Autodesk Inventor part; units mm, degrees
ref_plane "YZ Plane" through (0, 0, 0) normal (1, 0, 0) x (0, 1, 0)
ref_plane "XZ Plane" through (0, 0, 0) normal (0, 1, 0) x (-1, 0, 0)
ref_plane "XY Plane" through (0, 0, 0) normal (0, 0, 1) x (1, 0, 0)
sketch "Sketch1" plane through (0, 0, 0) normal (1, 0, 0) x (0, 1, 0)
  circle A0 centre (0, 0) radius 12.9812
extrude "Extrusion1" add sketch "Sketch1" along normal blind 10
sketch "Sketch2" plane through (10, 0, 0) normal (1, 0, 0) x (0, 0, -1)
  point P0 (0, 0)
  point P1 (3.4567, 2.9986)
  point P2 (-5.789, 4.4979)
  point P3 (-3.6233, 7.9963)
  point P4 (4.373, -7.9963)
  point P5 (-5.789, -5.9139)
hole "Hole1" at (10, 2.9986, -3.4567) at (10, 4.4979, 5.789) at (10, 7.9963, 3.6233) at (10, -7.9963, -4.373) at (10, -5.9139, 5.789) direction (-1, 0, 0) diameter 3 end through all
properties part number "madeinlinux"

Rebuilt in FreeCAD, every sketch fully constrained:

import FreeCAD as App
import Part
import Sketcher
from FreeCAD import Vector

doc = App.newDocument("Part")
body = doc.addObject("PartDesign::Body", "Body")

# Sketch on YZ plane
sketch1 = body.newObject("Sketcher::SketchObject", "Sketch")
sketch1.AttachmentSupport = (doc.getObject("YZ_Plane"), [""])
sketch1.MapMode = "FlatFace"
sketch1.addGeometry(Part.Circle(Vector(0, 0, 0), Vector(0, 0, 1), 13), False)
sketch1.addConstraint(Sketcher.Constraint("Coincident", 0, 3, -1, 1))
sketch1.addConstraint(Sketcher.Constraint("Diameter", 0, 25.9624))
pad1 = body.newObject("PartDesign::Pad", "Pad")
pad1.Profile = sketch1
pad1.Length = 10

# Sketch on YZ plane
sketch2 = body.newObject("Sketcher::SketchObject", "Sketch001")
sketch2.AttachmentSupport = (doc.getObject("YZ_Plane"), [""])
sketch2.MapMode = "FlatFace"
sketch2.AttachmentOffset = App.Placement(Vector(0, 0, 10), App.Rotation())
sketch2.addGeometry(Part.Circle(Vector(3, -3.5, 0), Vector(0, 0, 1), 1.5), False)
sketch2.addGeometry(Part.Circle(Vector(4.5, 5.8, 0), Vector(0, 0, 1), 1.5), False)
sketch2.addGeometry(Part.Circle(Vector(8, 3.6, 0), Vector(0, 0, 1), 1.5), False)
sketch2.addGeometry(Part.Circle(Vector(-8, -4.4, 0), Vector(0, 0, 1), 1.5), False)
sketch2.addGeometry(Part.Circle(Vector(-5.9, 5.8, 0), Vector(0, 0, 1), 1.5), False)
sketch2.addConstraint(Sketcher.Constraint("Equal", 0, 1))
sketch2.addConstraint(Sketcher.Constraint("Equal", 1, 2))
sketch2.addConstraint(Sketcher.Constraint("Equal", 2, 3))
sketch2.addConstraint(Sketcher.Constraint("Equal", 3, 4))
sketch2.addConstraint(Sketcher.Constraint("Horizontal", 1, 3, 4, 3))
sketch2.addConstraint(Sketcher.Constraint("Diameter", 0, 3.0))
sketch2.addConstraint(Sketcher.Constraint("DistanceY", 0, 3, 2, 3, 7.08))
sketch2.addConstraint(Sketcher.Constraint("DistanceX", -1, 1, 1, 3, 4.498))
sketch2.addConstraint(Sketcher.Constraint("DistanceY", -1, 1, 1, 3, 5.789))
sketch2.addConstraint(Sketcher.Constraint("DistanceY", 3, 3, -1, 1, 4.373))
sketch2.addConstraint(Sketcher.Constraint("DistanceX", 4, 3, -1, 1, 5.914))
sketch2.addConstraint(Sketcher.Constraint("DistanceX", 3, 3, 0, 3, 10.995))
sketch2.addConstraint(Sketcher.Constraint("DistanceX", -1, 1, 0, 3, 2.9986))
sketch2.addConstraint(Sketcher.Constraint("DistanceY", 0, 3, -1, 1, 3.4567))
sketch2.addConstraint(Sketcher.Constraint("DistanceX", -1, 1, 2, 3, 7.9963))
doc.recompute()
hole = body.newObject("PartDesign::Hole", "Hole")
hole.Profile = sketch2
hole.ThreadType = "None"
hole.Diameter = 3
hole.DepthType = "ThroughAll"

doc.recompute()
